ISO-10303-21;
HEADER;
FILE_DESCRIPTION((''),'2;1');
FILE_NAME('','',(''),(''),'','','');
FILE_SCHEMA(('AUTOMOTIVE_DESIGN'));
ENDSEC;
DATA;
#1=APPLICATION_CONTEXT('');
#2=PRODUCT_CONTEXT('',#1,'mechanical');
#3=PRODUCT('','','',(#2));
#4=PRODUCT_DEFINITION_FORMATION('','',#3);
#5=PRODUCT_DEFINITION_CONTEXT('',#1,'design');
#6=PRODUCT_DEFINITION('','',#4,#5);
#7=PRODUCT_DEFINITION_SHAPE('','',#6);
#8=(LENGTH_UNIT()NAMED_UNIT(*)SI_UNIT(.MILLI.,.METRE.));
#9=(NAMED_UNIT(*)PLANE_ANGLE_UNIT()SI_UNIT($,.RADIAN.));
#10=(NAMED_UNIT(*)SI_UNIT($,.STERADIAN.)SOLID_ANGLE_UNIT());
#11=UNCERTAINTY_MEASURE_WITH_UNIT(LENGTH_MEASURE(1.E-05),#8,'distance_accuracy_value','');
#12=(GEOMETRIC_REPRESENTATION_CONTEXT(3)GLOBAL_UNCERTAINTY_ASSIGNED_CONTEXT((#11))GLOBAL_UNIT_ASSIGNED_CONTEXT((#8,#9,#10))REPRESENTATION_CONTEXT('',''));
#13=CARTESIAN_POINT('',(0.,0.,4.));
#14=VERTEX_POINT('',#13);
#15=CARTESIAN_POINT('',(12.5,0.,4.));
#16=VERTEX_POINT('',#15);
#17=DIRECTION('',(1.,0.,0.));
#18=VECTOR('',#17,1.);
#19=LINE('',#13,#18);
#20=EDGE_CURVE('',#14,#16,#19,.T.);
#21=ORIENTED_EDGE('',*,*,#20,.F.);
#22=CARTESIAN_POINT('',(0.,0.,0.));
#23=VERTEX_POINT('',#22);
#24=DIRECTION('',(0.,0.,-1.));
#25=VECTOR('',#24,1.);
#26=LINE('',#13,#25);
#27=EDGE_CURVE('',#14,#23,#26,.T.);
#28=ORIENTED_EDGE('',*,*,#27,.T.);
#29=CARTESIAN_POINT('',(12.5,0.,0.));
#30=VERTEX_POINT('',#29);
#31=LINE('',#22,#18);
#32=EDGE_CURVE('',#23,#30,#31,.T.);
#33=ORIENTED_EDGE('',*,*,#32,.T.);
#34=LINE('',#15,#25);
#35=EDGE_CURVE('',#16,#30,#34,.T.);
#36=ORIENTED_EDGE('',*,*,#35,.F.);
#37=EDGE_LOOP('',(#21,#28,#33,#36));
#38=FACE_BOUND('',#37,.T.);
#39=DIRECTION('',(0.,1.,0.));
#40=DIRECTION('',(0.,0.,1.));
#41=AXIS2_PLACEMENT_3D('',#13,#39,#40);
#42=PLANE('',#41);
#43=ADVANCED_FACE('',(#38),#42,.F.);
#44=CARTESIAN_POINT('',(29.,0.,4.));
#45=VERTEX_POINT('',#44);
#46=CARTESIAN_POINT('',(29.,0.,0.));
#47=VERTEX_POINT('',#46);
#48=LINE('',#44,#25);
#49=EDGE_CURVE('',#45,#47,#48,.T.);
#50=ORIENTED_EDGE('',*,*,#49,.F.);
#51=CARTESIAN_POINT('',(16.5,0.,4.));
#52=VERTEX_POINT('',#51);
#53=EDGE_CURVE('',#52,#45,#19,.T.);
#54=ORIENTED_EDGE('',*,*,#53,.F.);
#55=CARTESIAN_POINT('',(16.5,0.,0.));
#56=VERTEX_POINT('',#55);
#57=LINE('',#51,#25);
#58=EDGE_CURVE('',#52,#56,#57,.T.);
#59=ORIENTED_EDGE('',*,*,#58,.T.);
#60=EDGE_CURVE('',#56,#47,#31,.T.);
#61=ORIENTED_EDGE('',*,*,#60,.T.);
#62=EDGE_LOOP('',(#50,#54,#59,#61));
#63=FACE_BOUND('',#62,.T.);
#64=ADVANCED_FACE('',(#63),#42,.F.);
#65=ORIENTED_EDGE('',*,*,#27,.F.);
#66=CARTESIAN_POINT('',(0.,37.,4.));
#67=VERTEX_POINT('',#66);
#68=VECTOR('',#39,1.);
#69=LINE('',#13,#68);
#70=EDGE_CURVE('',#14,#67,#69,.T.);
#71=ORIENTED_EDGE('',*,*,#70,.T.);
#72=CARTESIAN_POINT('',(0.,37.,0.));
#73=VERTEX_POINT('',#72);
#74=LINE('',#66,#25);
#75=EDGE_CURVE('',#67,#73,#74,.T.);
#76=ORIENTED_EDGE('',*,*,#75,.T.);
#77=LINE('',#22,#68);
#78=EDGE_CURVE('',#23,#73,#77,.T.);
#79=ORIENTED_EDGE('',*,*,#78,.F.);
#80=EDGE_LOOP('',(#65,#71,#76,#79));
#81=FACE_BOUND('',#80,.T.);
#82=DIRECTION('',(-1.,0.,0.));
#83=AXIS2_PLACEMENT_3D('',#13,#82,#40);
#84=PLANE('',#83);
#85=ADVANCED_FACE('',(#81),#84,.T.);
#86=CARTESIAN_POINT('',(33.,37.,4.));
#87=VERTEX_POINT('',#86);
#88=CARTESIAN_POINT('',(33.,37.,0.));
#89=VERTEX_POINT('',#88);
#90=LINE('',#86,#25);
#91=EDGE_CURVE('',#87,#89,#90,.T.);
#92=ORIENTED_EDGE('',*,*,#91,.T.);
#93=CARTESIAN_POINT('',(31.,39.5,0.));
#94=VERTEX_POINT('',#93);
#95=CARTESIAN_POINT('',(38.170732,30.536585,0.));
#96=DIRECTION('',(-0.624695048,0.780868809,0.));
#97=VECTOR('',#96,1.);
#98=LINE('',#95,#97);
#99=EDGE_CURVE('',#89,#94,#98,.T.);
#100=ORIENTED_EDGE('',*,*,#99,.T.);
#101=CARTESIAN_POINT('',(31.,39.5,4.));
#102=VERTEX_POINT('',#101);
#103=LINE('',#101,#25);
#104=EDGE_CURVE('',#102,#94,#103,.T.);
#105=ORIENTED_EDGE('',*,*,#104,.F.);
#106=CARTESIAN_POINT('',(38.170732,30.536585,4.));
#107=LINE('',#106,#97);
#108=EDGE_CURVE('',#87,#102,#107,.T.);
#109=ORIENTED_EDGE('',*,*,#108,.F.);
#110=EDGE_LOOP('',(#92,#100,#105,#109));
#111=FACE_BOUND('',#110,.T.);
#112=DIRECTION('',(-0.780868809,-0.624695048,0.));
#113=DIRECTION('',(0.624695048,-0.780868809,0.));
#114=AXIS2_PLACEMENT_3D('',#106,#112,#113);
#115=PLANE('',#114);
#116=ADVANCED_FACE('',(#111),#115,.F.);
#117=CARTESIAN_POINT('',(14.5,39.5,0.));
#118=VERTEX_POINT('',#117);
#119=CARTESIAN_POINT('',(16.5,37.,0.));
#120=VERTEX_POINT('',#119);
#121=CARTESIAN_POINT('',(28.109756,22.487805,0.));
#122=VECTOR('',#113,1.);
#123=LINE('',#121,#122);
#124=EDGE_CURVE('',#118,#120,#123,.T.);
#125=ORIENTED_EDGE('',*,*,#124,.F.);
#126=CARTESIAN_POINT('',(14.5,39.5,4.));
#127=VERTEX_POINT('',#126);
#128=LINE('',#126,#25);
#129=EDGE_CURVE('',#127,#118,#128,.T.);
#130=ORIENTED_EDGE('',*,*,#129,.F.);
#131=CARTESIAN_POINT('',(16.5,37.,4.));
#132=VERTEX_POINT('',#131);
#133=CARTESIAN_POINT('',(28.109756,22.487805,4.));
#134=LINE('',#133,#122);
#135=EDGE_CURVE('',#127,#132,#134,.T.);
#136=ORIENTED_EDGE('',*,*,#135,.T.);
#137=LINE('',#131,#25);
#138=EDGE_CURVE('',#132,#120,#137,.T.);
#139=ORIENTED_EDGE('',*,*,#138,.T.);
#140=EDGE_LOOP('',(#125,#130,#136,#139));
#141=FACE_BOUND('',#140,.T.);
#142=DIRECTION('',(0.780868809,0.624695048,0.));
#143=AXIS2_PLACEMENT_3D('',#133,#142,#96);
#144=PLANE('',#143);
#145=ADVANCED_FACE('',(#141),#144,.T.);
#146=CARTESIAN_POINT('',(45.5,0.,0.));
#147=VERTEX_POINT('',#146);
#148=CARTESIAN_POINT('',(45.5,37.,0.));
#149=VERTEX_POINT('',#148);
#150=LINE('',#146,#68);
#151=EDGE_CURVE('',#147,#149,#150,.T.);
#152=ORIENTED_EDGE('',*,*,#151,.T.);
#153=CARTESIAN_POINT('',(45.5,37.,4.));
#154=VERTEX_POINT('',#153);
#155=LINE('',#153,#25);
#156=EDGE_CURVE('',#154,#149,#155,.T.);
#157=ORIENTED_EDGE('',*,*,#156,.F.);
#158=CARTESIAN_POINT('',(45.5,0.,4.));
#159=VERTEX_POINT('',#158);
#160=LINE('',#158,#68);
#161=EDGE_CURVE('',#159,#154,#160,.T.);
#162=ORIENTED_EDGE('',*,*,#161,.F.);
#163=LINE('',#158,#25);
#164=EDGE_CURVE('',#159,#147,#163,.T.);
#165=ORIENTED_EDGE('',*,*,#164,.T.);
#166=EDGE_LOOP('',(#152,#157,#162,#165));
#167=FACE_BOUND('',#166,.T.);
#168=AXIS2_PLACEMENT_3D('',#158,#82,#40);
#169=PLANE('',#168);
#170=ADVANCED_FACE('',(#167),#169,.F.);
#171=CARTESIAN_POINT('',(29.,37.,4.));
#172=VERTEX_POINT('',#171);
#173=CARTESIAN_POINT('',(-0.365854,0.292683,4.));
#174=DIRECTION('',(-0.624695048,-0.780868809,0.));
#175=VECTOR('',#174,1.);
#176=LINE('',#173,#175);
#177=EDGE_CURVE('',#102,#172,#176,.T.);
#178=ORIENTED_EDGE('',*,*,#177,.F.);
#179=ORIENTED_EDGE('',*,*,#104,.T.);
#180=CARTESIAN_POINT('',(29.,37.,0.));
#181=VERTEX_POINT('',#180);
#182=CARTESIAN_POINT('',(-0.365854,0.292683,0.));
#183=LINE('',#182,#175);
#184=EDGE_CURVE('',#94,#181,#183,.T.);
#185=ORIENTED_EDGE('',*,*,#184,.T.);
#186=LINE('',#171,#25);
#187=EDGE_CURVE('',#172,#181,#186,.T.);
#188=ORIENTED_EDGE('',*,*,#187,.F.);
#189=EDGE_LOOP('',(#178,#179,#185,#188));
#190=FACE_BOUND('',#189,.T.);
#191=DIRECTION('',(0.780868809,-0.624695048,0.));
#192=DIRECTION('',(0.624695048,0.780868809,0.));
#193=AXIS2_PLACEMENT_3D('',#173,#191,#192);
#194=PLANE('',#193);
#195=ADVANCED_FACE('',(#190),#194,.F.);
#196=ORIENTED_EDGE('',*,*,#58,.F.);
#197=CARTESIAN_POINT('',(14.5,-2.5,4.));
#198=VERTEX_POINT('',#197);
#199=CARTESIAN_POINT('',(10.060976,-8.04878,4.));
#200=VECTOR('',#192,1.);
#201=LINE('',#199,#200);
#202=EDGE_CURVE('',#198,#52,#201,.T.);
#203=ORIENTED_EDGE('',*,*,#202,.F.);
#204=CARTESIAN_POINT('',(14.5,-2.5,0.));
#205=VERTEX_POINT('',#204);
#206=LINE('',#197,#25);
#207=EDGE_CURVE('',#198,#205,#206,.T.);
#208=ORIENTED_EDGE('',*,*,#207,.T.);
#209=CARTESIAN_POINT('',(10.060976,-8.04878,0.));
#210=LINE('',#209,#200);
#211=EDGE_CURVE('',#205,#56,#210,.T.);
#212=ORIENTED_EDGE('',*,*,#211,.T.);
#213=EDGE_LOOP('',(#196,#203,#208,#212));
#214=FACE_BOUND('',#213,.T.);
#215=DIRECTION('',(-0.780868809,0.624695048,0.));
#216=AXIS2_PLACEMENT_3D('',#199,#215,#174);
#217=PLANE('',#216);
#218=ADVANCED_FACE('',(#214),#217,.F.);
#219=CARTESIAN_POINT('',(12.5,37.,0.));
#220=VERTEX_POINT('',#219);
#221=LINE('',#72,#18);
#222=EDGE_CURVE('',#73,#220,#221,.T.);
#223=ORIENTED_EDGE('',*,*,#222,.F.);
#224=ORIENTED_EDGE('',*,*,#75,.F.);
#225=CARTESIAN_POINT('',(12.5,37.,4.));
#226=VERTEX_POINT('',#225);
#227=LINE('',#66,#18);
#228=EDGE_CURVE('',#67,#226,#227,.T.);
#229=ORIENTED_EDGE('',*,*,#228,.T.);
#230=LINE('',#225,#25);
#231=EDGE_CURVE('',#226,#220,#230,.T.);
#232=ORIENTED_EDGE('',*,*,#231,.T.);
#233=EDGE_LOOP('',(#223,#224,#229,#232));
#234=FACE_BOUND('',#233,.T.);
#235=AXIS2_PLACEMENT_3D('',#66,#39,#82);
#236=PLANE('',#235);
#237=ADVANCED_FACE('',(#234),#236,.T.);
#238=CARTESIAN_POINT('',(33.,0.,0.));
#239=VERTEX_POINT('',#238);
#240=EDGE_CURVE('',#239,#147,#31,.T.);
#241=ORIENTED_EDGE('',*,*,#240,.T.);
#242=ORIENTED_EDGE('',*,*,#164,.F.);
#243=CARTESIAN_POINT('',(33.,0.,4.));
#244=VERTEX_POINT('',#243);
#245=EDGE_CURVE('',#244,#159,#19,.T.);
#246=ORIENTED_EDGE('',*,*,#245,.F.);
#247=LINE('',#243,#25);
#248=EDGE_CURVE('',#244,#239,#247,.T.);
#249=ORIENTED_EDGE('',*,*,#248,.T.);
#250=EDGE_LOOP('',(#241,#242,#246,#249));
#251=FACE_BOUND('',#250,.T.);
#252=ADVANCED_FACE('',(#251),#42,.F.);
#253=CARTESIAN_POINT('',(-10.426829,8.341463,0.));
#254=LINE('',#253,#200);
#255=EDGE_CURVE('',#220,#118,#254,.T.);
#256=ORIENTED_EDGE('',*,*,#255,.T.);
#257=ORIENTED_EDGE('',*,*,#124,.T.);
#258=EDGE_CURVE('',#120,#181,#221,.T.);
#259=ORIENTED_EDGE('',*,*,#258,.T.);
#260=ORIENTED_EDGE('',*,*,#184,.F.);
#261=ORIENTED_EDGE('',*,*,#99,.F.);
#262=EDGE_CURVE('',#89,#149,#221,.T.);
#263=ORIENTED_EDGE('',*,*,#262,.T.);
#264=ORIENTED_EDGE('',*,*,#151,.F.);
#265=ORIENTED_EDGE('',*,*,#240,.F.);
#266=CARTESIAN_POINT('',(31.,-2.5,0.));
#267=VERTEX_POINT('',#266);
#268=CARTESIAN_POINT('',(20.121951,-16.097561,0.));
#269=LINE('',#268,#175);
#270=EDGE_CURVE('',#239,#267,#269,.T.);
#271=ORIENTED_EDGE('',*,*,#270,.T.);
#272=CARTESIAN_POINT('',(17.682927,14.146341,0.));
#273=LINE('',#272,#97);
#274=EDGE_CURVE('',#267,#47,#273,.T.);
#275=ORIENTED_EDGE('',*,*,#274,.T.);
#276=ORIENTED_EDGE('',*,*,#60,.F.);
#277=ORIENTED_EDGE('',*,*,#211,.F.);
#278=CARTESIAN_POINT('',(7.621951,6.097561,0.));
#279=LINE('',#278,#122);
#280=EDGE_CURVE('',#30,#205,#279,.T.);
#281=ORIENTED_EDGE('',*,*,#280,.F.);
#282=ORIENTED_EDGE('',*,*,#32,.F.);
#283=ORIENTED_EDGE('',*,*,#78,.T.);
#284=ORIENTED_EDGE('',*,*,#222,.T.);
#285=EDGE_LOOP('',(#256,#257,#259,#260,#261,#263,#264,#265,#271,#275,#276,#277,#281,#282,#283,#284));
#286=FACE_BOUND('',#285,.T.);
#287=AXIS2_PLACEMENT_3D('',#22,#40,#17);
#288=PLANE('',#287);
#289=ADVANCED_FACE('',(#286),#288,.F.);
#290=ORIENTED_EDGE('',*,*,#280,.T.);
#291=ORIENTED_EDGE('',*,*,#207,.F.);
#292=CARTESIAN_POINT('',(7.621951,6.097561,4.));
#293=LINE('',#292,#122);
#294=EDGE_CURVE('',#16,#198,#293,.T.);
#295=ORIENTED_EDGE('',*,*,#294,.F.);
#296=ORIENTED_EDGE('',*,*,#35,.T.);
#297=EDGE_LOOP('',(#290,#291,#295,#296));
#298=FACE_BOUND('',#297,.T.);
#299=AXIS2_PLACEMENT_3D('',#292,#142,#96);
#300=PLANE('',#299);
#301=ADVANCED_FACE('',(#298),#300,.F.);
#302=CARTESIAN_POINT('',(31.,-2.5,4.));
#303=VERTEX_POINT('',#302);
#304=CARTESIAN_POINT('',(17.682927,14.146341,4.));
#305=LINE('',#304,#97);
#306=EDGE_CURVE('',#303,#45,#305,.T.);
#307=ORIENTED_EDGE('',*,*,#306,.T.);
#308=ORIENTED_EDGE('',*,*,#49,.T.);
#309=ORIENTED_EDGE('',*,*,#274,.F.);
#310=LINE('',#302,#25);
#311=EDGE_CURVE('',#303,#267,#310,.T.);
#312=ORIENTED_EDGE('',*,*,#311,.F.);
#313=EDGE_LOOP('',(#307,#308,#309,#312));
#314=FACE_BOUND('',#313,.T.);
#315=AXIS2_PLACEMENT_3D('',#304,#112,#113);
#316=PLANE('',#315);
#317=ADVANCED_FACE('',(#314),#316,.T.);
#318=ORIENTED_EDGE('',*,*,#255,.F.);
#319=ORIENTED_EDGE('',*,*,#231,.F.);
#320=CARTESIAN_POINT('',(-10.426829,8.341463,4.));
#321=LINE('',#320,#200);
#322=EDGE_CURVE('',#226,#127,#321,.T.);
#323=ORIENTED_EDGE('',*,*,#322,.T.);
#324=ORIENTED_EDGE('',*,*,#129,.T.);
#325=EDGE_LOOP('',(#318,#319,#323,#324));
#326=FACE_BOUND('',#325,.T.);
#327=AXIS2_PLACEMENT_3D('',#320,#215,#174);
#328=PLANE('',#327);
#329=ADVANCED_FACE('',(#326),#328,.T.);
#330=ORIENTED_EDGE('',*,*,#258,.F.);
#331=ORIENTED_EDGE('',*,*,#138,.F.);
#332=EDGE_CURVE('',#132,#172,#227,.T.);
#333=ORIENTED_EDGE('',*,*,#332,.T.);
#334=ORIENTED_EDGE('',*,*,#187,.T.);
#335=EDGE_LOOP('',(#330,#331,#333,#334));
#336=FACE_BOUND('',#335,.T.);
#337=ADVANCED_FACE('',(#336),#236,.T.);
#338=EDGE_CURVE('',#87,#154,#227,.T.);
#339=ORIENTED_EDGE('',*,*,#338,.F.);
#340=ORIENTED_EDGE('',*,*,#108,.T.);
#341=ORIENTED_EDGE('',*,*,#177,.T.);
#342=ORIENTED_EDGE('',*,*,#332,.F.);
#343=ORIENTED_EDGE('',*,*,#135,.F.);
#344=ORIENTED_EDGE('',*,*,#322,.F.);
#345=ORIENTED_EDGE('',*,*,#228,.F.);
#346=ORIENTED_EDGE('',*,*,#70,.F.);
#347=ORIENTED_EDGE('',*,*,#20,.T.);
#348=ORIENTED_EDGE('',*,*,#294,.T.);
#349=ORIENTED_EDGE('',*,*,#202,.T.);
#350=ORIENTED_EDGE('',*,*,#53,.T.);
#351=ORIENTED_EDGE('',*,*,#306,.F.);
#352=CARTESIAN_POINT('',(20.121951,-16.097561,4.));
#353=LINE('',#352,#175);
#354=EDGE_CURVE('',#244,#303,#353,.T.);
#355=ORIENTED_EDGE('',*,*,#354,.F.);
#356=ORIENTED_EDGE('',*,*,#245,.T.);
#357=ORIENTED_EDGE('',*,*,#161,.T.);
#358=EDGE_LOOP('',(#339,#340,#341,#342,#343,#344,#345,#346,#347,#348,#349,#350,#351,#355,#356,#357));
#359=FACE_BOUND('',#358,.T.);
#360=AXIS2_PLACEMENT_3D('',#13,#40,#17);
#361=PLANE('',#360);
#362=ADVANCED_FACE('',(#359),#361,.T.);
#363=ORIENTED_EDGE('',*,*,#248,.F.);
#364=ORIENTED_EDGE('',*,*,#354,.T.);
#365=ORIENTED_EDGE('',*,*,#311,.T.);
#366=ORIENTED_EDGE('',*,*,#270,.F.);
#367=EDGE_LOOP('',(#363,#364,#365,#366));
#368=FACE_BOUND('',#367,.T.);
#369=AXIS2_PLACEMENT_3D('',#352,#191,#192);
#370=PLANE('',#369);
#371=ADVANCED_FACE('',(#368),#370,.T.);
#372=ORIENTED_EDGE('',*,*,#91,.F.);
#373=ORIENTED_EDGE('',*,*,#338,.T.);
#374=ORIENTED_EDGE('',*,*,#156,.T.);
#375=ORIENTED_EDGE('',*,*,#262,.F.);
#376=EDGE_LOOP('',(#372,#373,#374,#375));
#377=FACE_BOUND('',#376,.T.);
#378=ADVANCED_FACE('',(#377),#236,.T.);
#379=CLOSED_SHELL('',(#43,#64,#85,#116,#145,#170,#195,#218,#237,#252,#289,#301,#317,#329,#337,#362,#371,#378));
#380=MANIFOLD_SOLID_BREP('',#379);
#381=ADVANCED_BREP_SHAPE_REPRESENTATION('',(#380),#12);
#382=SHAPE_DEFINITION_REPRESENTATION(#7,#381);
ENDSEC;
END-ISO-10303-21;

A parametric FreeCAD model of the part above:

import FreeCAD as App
import Part
import Sketcher

doc = App.newDocument("Part")
body = doc.addObject("PartDesign::Body", "Body")

sketch1 = body.newObject("Sketcher::SketchObject", "Sketch")
sketch1.AttachmentSupport = (doc.getObject("XY_Plane"), [""])
sketch1.MapMode = "FlatFace"
sketch1.addGeometry([
    Part.LineSegment(App.Vector(0, 37, 0), App.Vector(0, 0, 0)),
    Part.LineSegment(App.Vector(0, 0, 0), App.Vector(12.5, 0, 0)),
    Part.LineSegment(App.Vector(12.5, 0, 0), App.Vector(14.5, -2.5, 0)),
    Part.LineSegment(App.Vector(14.5, -2.5, 0), App.Vector(16.5, 0, 0)),
    Part.LineSegment(App.Vector(16.5, 0, 0), App.Vector(29, 0, 0)),
    Part.LineSegment(App.Vector(29, 0, 0), App.Vector(31, -2.5, 0)),
    Part.LineSegment(App.Vector(31, -2.5, 0), App.Vector(33, 0, 0)),
    Part.LineSegment(App.Vector(33, 0, 0), App.Vector(45.5, 0, 0)),
    Part.LineSegment(App.Vector(45.5, 0, 0), App.Vector(45.5, 37, 0)),
    Part.LineSegment(App.Vector(45.5, 37, 0), App.Vector(33, 37, 0)),
    Part.LineSegment(App.Vector(33, 37, 0), App.Vector(31, 39.5, 0)),
    Part.LineSegment(App.Vector(31, 39.5, 0), App.Vector(29, 37, 0)),
    Part.LineSegment(App.Vector(29, 37, 0), App.Vector(16.5, 37, 0)),
    Part.LineSegment(App.Vector(16.5, 37, 0), App.Vector(14.5, 39.5, 0)),
    Part.LineSegment(App.Vector(14.5, 39.5, 0), App.Vector(12.5, 37, 0)),
    Part.LineSegment(App.Vector(12.5, 37, 0), App.Vector(0, 37, 0)),
], False)
sketch1.addConstraint([
    Sketcher.Constraint("Coincident", 0, 2, 1, 1),
    Sketcher.Constraint("Coincident", 1, 2, 2, 1),
    Sketcher.Constraint("Coincident", 2, 2, 3, 1),
    Sketcher.Constraint("Coincident", 3, 2, 4, 1),
    Sketcher.Constraint("Coincident", 4, 2, 5, 1),
    Sketcher.Constraint("Coincident", 5, 2, 6, 1),
    Sketcher.Constraint("Coincident", 6, 2, 7, 1),
    Sketcher.Constraint("Coincident", 7, 2, 8, 1),
    Sketcher.Constraint("Coincident", 8, 2, 9, 1),
    Sketcher.Constraint("Coincident", 9, 2, 10, 1),
    Sketcher.Constraint("Coincident", 10, 2, 11, 1),
    Sketcher.Constraint("Coincident", 11, 2, 12, 1),
    Sketcher.Constraint("Coincident", 12, 2, 13, 1),
    Sketcher.Constraint("Coincident", 13, 2, 14, 1),
    Sketcher.Constraint("Coincident", 14, 2, 15, 1),
    Sketcher.Constraint("Coincident", 15, 2, 0, 1),
    Sketcher.Constraint("Vertical", 0),
    Sketcher.Constraint("Horizontal", 1),
    Sketcher.Constraint("Horizontal", 4),
    Sketcher.Constraint("Horizontal", 7),
    Sketcher.Constraint("Vertical", 8),
    Sketcher.Constraint("Horizontal", 9),
    Sketcher.Constraint("Horizontal", 12),
    Sketcher.Constraint("Horizontal", 15),
    Sketcher.Constraint("Coincident", 0, 2, -1, 1),
    Sketcher.Constraint("PointOnObject", 3, 2, -1),
    Sketcher.Constraint("PointOnObject", 6, 2, -1),
    Sketcher.Constraint("Parallel", 2, 5),
    Sketcher.Constraint("Parallel", 3, 6),
    Sketcher.Constraint("Parallel", 5, 10),
    Sketcher.Constraint("Parallel", 6, 11),
    Sketcher.Constraint("Parallel", 10, 13),
    Sketcher.Constraint("Parallel", 11, 14),
    Sketcher.Constraint("Horizontal", 2, 2, 5, 2),
    Sketcher.Constraint("Horizontal", 9, 2, 11, 2),
    Sketcher.Constraint("Horizontal", 10, 2, 13, 2),
    Sketcher.Constraint("Horizontal", 12, 2, 14, 2),
    Sketcher.Constraint("Vertical", 6, 2, 9, 2),
    Sketcher.Constraint("Vertical", 5, 2, 10, 2),
    Sketcher.Constraint("Vertical", 4, 2, 11, 2),
    Sketcher.Constraint("Vertical", 3, 2, 12, 2),
    Sketcher.Constraint("Equal", 1, 4),
    Sketcher.Constraint("Equal", 4, 7),
    Sketcher.Constraint("DistanceY", 0, 2, 0, 1, 37.0),
    Sketcher.Constraint("DistanceX", 1, 1, 1, 2, 12.5),
    Sketcher.Constraint("DistanceX", -1, 1, 4, 2, 29.0),
    Sketcher.Constraint("DistanceY", 5, 2, 10, 2, 42.0),
])
pad1 = body.newObject("PartDesign::Pad", "Pad")
pad1.Profile = sketch1
pad1.Length = 4

doc.recompute()
